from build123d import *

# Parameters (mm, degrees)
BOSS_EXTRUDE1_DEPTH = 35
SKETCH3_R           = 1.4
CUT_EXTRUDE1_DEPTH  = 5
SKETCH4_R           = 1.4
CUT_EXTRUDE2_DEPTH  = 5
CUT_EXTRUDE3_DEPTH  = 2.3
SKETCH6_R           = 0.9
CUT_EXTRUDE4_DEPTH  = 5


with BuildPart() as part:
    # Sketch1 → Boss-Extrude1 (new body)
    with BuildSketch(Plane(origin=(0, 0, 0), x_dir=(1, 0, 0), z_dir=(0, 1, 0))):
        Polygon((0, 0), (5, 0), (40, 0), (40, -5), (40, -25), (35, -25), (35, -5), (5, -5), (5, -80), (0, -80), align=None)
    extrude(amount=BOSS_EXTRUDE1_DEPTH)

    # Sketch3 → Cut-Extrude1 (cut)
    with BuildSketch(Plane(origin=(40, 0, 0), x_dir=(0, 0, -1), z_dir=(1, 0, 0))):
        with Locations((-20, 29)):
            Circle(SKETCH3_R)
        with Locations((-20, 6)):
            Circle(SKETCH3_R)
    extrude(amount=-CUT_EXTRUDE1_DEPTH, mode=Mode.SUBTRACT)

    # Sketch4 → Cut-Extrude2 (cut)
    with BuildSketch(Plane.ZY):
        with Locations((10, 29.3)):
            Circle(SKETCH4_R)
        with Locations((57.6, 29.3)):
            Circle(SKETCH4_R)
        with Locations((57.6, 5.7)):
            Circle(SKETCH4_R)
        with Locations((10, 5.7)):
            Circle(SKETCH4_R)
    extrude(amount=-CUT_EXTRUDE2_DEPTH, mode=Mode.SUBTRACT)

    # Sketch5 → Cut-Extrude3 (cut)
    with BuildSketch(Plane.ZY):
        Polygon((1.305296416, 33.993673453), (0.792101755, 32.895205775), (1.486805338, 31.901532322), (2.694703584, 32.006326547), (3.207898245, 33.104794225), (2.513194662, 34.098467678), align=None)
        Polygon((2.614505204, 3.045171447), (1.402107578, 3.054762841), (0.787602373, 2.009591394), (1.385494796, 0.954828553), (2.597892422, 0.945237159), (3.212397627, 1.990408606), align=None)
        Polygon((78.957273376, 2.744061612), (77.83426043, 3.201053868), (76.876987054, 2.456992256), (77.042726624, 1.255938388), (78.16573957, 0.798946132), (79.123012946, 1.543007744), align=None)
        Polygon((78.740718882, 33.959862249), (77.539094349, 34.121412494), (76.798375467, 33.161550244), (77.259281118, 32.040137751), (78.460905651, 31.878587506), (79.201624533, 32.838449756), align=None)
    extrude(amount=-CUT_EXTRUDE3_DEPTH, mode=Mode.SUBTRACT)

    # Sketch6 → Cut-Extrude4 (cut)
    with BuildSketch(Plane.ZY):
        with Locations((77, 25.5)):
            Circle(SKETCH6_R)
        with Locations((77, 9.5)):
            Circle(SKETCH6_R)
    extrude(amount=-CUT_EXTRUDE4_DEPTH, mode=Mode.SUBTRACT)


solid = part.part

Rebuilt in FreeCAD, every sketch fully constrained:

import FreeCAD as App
import Part
import Sketcher


def add_polygon(sketch, points):
    """Adds a closed chain of lines whose ends are joined by coincident constraints."""
    first, n = sketch.GeometryCount, len(points)
    for a, b in zip(points, points[1:] + points[:1]):
        sketch.addGeometry(Part.LineSegment(App.Vector(*a, 0), App.Vector(*b, 0)), False)
    for i in range(n):
        sketch.addConstraint(Sketcher.Constraint("Coincident", first + i, 2, first + (i + 1) % n, 1))

doc = App.newDocument("Part")
body = doc.addObject("PartDesign::Body", "Body")

sketch1 = body.newObject("Sketcher::SketchObject", "Sketch")
sketch1.AttachmentSupport = (doc.getObject("XZ_Plane"), [""])
sketch1.MapMode = "FlatFace"
add_polygon(sketch1, [(40, 0), (0, 0), (0, 80), (5, 80), (5, 5), (35, 5), (35, 25), (40, 25)])
sketch1.addConstraint(Sketcher.Constraint("Horizontal", 0))
sketch1.addConstraint(Sketcher.Constraint("Vertical", 1))
sketch1.addConstraint(Sketcher.Constraint("Horizontal", 2))
sketch1.addConstraint(Sketcher.Constraint("Vertical", 3))
sketch1.addConstraint(Sketcher.Constraint("Horizontal", 4))
sketch1.addConstraint(Sketcher.Constraint("Vertical", 5))
sketch1.addConstraint(Sketcher.Constraint("Horizontal", 6))
sketch1.addConstraint(Sketcher.Constraint("Vertical", 7))
sketch1.addConstraint(Sketcher.Constraint("Coincident", 0, 2, -1, 1))
sketch1.addConstraint(Sketcher.Constraint("Equal", 2, 6))
sketch1.addConstraint(Sketcher.Constraint("DistanceX", 0, 2, 0, 1, 40.0))
sketch1.addConstraint(Sketcher.Constraint("DistanceX", 2, 1, 2, 2, 5.0))
sketch1.addConstraint(Sketcher.Constraint("DistanceY", 1, 1, 1, 2, 80.0))
sketch1.addConstraint(Sketcher.Constraint("DistanceY", 3, 2, 3, 1, 75.0))
sketch1.addConstraint(Sketcher.Constraint("DistanceY", 5, 1, 5, 2, 20.0))
pad1 = body.newObject("PartDesign::Pad", "Pad")
pad1.Profile = sketch1
pad1.Length = 35
pad1.Reversed = True

sketch2 = body.newObject("Sketcher::SketchObject", "Sketch001")
sketch2.AttachmentSupport = (doc.getObject("YZ_Plane"), [""])
sketch2.MapMode = "FlatFace"
sketch2.AttachmentOffset = App.Placement(App.Vector(0, 0, 40), App.Rotation())
sketch2.addGeometry(Part.Circle(App.Vector(29, 20, 0), App.Vector(0, 0, 1), 1.4), False)
sketch2.addGeometry(Part.Circle(App.Vector(6, 20, 0), App.Vector(0, 0, 1), 1.4), False)
sketch2.addConstraint(Sketcher.Constraint("Equal", 0, 1))
sketch2.addConstraint(Sketcher.Constraint("Horizontal", 0, 3, 1, 3))
sketch2.addConstraint(Sketcher.Constraint("Diameter", 0, 2.8))
sketch2.addConstraint(Sketcher.Constraint("DistanceX", -1, 1, 0, 3, 29.0))
sketch2.addConstraint(Sketcher.Constraint("DistanceY", -1, 1, 0, 3, 20.0))
sketch2.addConstraint(Sketcher.Constraint("DistanceX", -1, 1, 1, 3, 6.0))
pocket1 = body.newObject("PartDesign::Pocket", "Pocket")
pocket1.Profile = sketch2
pocket1.Length = 5

sketch3 = body.newObject("Sketcher::SketchObject", "Sketch002")
sketch3.AttachmentSupport = (doc.getObject("YZ_Plane"), [""])
sketch3.MapMode = "FlatFace"
sketch3.addGeometry(Part.Circle(App.Vector(29.3, 10, 0), App.Vector(0, 0, 1), 1.4), False)
sketch3.addGeometry(Part.Circle(App.Vector(29.3, 57.6, 0), App.Vector(0, 0, 1), 1.4), False)
sketch3.addGeometry(Part.Circle(App.Vector(5.7, 57.6, 0), App.Vector(0, 0, 1), 1.4), False)
sketch3.addGeometry(Part.Circle(App.Vector(5.7, 10, 0), App.Vector(0, 0, 1), 1.4), False)
sketch3.addConstraint(Sketcher.Constraint("Equal", 0, 1))
sketch3.addConstraint(Sketcher.Constraint("Equal", 1, 2))
sketch3.addConstraint(Sketcher.Constraint("Equal", 2, 3))
sketch3.addConstraint(Sketcher.Constraint("Horizontal", 1, 3, 2, 3))
sketch3.addConstraint(Sketcher.Constraint("Horizontal", 0, 3, 3, 3))
sketch3.addConstraint(Sketcher.Constraint("Vertical", 0, 3, 1, 3))
sketch3.addConstraint(Sketcher.Constraint("Vertical", 2, 3, 3, 3))
sketch3.addConstraint(Sketcher.Constraint("Diameter", 0, 2.8))
sketch3.addConstraint(Sketcher.Constraint("DistanceY", -1, 1, 0, 3, 10.0))
sketch3.addConstraint(Sketcher.Constraint("DistanceX", -1, 1, 0, 3, 29.3))
sketch3.addConstraint(Sketcher.Constraint("DistanceY", -1, 1, 1, 3, 57.6))
sketch3.addConstraint(Sketcher.Constraint("DistanceX", -1, 1, 2, 3, 5.7))
pocket2 = body.newObject("PartDesign::Pocket", "Pocket001")
pocket2.Profile = sketch3
pocket2.Length = 5
pocket2.Reversed = True

sketch4 = body.newObject("Sketcher::SketchObject", "Sketch003")
sketch4.AttachmentSupport = (doc.getObject("YZ_Plane"), [""])
sketch4.MapMode = "FlatFace"
add_polygon(sketch4, [(34, 1.3), (32.9, 0.8), (31.9, 1.5), (32, 2.7), (33.1, 3.2), (34.1, 2.5)])
add_polygon(sketch4, [(3, 2.6), (3.1, 1.4), (2, 0.8), (1, 1.4), (0.9, 2.6), (2, 3.2)])
add_polygon(sketch4, [(2.7, 79), (3.2, 77.8), (2.5, 76.9), (1.3, 77), (0.8, 78.2), (1.5, 79.1)])
add_polygon(sketch4, [(34, 78.7), (34.1, 77.5), (33.2, 76.8), (32, 77.3), (31.9, 78.5), (32.8, 79.2)])
sketch4.addConstraint(Sketcher.Constraint("Parallel", 0, 3))
sketch4.addConstraint(Sketcher.Constraint("Parallel", 1, 4))
sketch4.addConstraint(Sketcher.Constraint("Parallel", 2, 5))
sketch4.addConstraint(Sketcher.Constraint("Parallel", 6, 9))
sketch4.addConstraint(Sketcher.Constraint("Parallel", 7, 10))
sketch4.addConstraint(Sketcher.Constraint("Parallel", 8, 11))
sketch4.addConstraint(Sketcher.Constraint("Parallel", 12, 15))
sketch4.addConstraint(Sketcher.Constraint("Parallel", 13, 16))
sketch4.addConstraint(Sketcher.Constraint("Parallel", 14, 17))
sketch4.addConstraint(Sketcher.Constraint("Parallel", 18, 21))
sketch4.addConstraint(Sketcher.Constraint("Parallel", 19, 22))
sketch4.addConstraint(Sketcher.Constraint("Parallel", 20, 23))
sketch4.addConstraint(Sketcher.Constraint("Equal", 0, 1))
sketch4.addConstraint(Sketcher.Constraint("Equal", 1, 2))
sketch4.addConstraint(Sketcher.Constraint("Equal", 2, 3))
sketch4.addConstraint(Sketcher.Constraint("Equal", 5, 6))
sketch4.addConstraint(Sketcher.Constraint("Equal", 6, 7))
sketch4.addConstraint(Sketcher.Constraint("Equal", 7, 8))
sketch4.addConstraint(Sketcher.Constraint("Equal", 8, 9))
sketch4.addConstraint(Sketcher.Constraint("Equal", 11, 12))
sketch4.addConstraint(Sketcher.Constraint("Equal", 12, 13))
sketch4.addConstraint(Sketcher.Constraint("Equal", 13, 14))
sketch4.addConstraint(Sketcher.Constraint("Equal", 14, 15))
sketch4.addConstraint(Sketcher.Constraint("Equal", 17, 18))
sketch4.addConstraint(Sketcher.Constraint("Equal", 18, 19))
sketch4.addConstraint(Sketcher.Constraint("Equal", 19, 20))
sketch4.addConstraint(Sketcher.Constraint("Equal", 20, 21))
sketch4.addConstraint(Sketcher.Constraint("DistanceY", -1, 1, 0, 2, 0.792102))
sketch4.addConstraint(Sketcher.Constraint("DistanceY", -1, 1, 3, 2, 3.207898))
sketch4.addConstraint(Sketcher.Constraint("DistanceY", 1, 2, 2, 2, 1.207898))
sketch4.addConstraint(Sketcher.Constraint("DistanceY", 0, 2, 2, 2, 1.902602))
sketch4.addConstraint(Sketcher.Constraint("DistanceY", 7, 2, 2, 2, 1.907101))
sketch4.addConstraint(Sketcher.Constraint("DistanceX", 9, 2, 14, 2, 0.310701))
sketch4.addConstraint(Sketcher.Constraint("DistanceX", 16, 2, 10, 2, 0.447401))
sketch4.addConstraint(Sketcher.Constraint("DistanceX", 22, 2, 19, 2, 0.3231))
sketch4.addConstraint(Sketcher.Constraint("DistanceX", -1, 1, 7, 2, 2.009591))
sketch4.addConstraint(Sketcher.Constraint("DistanceX", -1, 1, 8, 2, 0.954829))
sketch4.addConstraint(Sketcher.Constraint("DistanceX", -1, 1, 10, 2, 1.990409))
sketch4.addConstraint(Sketcher.Constraint("DistanceY", -1, 1, 12, 2, 77.83426))
sketch4.addConstraint(Sketcher.Constraint("DistanceX", -1, 1, 14, 2, 1.255938))
sketch4.addConstraint(Sketcher.Constraint("DistanceY", -1, 1, 15, 2, 78.16574))
sketch4.addConstraint(Sketcher.Constraint("DistanceX", -1, 1, 17, 2, 2.744062))
sketch4.addConstraint(Sketcher.Constraint("DistanceX", -1, 1, 19, 2, 33.16155))
sketch4.addConstraint(Sketcher.Constraint("DistanceY", -1, 1, 20, 2, 77.259281))
sketch4.addConstraint(Sketcher.Constraint("DistanceY", -1, 1, 23, 2, 78.740719))
sketch4.addConstraint(Sketcher.Constraint("DistanceX", 2, 2, 0, 2, 0.888879))
sketch4.addConstraint(Sketcher.Constraint("DistanceX", 6, 2, 1, 2, 28.846769))
sketch4.addConstraint(Sketcher.Constraint("DistanceX", 12, 2, 18, 2, 30.920359))
pocket3 = body.newObject("PartDesign::Pocket", "Pocket002")
pocket3.Profile = sketch4
pocket3.Length = 2.3
pocket3.Reversed = True

sketch5 = body.newObject("Sketcher::SketchObject", "Sketch004")
sketch5.AttachmentSupport = (doc.getObject("YZ_Plane"), [""])
sketch5.MapMode = "FlatFace"
sketch5.addGeometry(Part.Circle(App.Vector(25.5, 77, 0), App.Vector(0, 0, 1), 0.9), False)
sketch5.addGeometry(Part.Circle(App.Vector(9.5, 77, 0), App.Vector(0, 0, 1), 0.9), False)
sketch5.addConstraint(Sketcher.Constraint("Equal", 0, 1))
sketch5.addConstraint(Sketcher.Constraint("Horizontal", 0, 3, 1, 3))
sketch5.addConstraint(Sketcher.Constraint("Diameter", 0, 1.8))
sketch5.addConstraint(Sketcher.Constraint("DistanceY", -1, 1, 0, 3, 77.0))
sketch5.addConstraint(Sketcher.Constraint("DistanceX", 1, 3, 0, 3, 16.0))
sketch5.addConstraint(Sketcher.Constraint("DistanceX", -1, 1, 0, 3, 25.5))
pocket4 = body.newObject("PartDesign::Pocket", "Pocket003")
pocket4.Profile = sketch5
pocket4.Length = 5
pocket4.Reversed = True

doc.recompute()
